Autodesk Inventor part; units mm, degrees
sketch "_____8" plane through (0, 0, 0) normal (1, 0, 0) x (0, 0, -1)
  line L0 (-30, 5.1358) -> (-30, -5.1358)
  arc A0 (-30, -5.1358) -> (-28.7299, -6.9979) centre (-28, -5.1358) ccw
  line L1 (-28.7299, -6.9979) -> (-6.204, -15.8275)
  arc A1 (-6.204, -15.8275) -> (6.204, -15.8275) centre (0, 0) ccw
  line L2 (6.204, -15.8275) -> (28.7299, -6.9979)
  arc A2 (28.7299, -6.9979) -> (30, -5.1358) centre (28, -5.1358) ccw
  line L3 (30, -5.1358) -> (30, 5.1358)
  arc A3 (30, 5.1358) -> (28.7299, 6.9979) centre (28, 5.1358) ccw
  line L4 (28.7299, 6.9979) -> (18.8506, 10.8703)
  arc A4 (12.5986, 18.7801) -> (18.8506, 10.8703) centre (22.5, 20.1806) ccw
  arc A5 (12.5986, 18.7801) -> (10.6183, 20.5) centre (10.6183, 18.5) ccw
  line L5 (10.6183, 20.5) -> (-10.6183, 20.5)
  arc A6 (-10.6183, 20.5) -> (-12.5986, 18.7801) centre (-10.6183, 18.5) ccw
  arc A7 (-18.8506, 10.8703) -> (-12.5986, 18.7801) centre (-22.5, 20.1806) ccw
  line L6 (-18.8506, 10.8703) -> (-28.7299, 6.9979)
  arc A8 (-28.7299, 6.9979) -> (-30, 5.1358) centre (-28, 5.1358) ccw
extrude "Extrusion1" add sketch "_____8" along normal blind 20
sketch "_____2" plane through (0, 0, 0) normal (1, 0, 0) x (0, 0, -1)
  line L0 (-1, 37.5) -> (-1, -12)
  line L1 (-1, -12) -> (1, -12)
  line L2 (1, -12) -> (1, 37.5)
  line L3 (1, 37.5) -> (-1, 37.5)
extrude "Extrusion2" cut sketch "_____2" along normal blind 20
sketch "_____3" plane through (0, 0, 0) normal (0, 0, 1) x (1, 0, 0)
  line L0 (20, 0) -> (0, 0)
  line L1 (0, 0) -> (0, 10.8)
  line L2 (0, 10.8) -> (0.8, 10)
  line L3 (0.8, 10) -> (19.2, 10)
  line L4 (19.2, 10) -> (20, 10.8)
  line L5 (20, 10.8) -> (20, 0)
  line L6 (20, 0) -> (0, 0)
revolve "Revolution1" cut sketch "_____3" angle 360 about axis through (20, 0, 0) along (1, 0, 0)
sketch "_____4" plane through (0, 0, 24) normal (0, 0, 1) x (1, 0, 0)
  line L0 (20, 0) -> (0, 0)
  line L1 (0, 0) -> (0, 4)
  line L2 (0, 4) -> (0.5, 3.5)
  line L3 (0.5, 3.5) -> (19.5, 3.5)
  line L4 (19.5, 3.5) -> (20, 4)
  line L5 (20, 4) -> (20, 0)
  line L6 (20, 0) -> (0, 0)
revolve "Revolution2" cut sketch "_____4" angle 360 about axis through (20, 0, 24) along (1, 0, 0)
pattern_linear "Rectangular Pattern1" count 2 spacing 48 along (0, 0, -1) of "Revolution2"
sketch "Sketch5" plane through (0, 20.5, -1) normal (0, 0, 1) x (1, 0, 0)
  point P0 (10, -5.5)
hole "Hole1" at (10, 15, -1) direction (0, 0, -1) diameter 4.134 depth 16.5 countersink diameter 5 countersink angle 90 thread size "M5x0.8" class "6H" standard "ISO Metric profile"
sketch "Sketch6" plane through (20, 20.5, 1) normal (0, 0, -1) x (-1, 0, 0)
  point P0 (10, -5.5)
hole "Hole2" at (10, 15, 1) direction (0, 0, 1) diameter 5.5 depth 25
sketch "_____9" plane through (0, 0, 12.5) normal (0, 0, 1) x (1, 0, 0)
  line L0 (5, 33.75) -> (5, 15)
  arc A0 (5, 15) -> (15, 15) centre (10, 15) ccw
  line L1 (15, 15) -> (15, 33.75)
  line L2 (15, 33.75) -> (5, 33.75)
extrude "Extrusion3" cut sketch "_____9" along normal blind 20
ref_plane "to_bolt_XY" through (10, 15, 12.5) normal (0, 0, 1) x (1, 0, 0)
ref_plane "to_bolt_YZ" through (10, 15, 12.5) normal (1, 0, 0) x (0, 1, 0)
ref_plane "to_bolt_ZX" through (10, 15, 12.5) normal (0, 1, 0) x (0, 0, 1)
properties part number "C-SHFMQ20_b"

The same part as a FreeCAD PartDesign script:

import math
import FreeCAD as App
import Part
import Sketcher
from FreeCAD import Vector


def add_polygon(sketch, points):
    """Adds a closed chain of lines whose ends are joined by coincident constraints."""
    first, n = sketch.GeometryCount, len(points)
    for a, b in zip(points, points[1:] + points[:1]):
        sketch.addGeometry(Part.LineSegment(App.Vector(*a, 0), App.Vector(*b, 0)), False)
    for i in range(n):
        sketch.addConstraint(Sketcher.Constraint("Coincident", first + i, 2, first + (i + 1) % n, 1))

doc = App.newDocument("Part")
body = doc.addObject("PartDesign::Body", "Body")

# Sketch on YZ plane
sketch1 = body.newObject("Sketcher::SketchObject", "Sketch")
sketch1.AttachmentSupport = (doc.getObject("YZ_Plane"), [""])
sketch1.MapMode = "FlatFace"
sketch1.addGeometry([
    Part.ArcOfCircle(Part.Circle(Vector(5.1, 28, 0), Vector(0, 0, 1), 2), math.radians(21), math.radians(90)),  # 0
    Part.LineSegment(Vector(5.1, 30, 0), Vector(-5.1, 30, 0)),  # 1
    Part.ArcOfCircle(Part.Circle(Vector(-5.1, 28, 0), Vector(0, 0, 1), 2), math.radians(90), math.radians(159)),  # 2
    Part.LineSegment(Vector(-7, 28.7, 0), Vector(-15.8, 6.2, 0)),  # 3
    Part.ArcOfCircle(Part.Circle(Vector(0, 0, 0), Vector(0, 0, 1), 17), math.radians(159), math.radians(201)),  # 4
    Part.LineSegment(Vector(-15.8, -6.2, 0), Vector(-7, -28.7, 0)),  # 5
    Part.ArcOfCircle(Part.Circle(Vector(-5.1, -28, 0), Vector(0, 0, 1), 2), math.radians(-159), math.radians(-90)),  # 6
    Part.LineSegment(Vector(-5.1, -30, 0), Vector(5.1, -30, 0)),  # 7
    Part.ArcOfCircle(Part.Circle(Vector(5.1, -28, 0), Vector(0, 0, 1), 2), math.radians(-90), math.radians(-21)),  # 8
    Part.LineSegment(Vector(7, -28.7, 0), Vector(10.9, -18.9, 0)),  # 9
    Part.ArcOfCircle(Part.Circle(Vector(20.2, -22.5, 0), Vector(0, 0, 1), 10), math.radians(98), math.radians(159)),  # 10
    Part.ArcOfCircle(Part.Circle(Vector(18.5, -10.6, 0), Vector(0, 0, 1), 2), math.radians(-82), math.radians(0)),  # 11
    Part.LineSegment(Vector(20.5, -10.6, 0), Vector(20.5, 10.6, 0)),  # 12
    Part.ArcOfCircle(Part.Circle(Vector(18.5, 10.6, 0), Vector(0, 0, 1), 2), math.radians(0), math.radians(82)),  # 13
    Part.ArcOfCircle(Part.Circle(Vector(20.2, 22.5, 0), Vector(0, 0, 1), 10), math.radians(-159), math.radians(-98)),  # 14
    Part.LineSegment(Vector(10.9, 18.9, 0), Vector(7, 28.7, 0)),  # 15
], False)
sketch1.addConstraint([
    Sketcher.Constraint("Tangent", 0, 2, 1, 1),
    Sketcher.Constraint("Tangent", 1, 2, 2, 1),
    Sketcher.Constraint("Tangent", 2, 2, 3, 1),
    Sketcher.Constraint("Tangent", 3, 2, 4, 1),
    Sketcher.Constraint("Tangent", 4, 2, 5, 1),
    Sketcher.Constraint("Tangent", 5, 2, 6, 1),
    Sketcher.Constraint("Tangent", 6, 2, 7, 1),
    Sketcher.Constraint("Tangent", 7, 2, 8, 1),
    Sketcher.Constraint("Tangent", 8, 2, 9, 1),
    Sketcher.Constraint("Tangent", 9, 2, 10, 2),
    Sketcher.Constraint("Tangent", 10, 1, 11, 1),
    Sketcher.Constraint("Tangent", 11, 2, 12, 1),
    Sketcher.Constraint("Tangent", 12, 2, 13, 1),
    Sketcher.Constraint("Tangent", 13, 2, 14, 2),
    Sketcher.Constraint("Tangent", 14, 1, 15, 1),
    Sketcher.Constraint("Tangent", 15, 2, 0, 1),
    Sketcher.Constraint("Horizontal", 1),
    Sketcher.Constraint("Horizontal", 7),
    Sketcher.Constraint("Vertical", 12),
    Sketcher.Constraint("Coincident", 4, 3, -1, 1),
    Sketcher.Constraint("Equal", 0, 2),
    Sketcher.Constraint("Equal", 2, 6),
    Sketcher.Constraint("Equal", 6, 8),
    Sketcher.Constraint("Equal", 8, 11),
    Sketcher.Constraint("Equal", 11, 13),
    Sketcher.Constraint("Equal", 10, 14),
    Sketcher.Constraint("Symmetric", 0, 3, 6, 3, -1, 1),
    Sketcher.Constraint("Symmetric", 2, 2, 8, 2, -1, 1),
    Sketcher.Constraint("Symmetric", 2, 2, 15, 2, -2),
    Sketcher.Constraint("Vertical", 10, 3, 14, 3),
    Sketcher.Constraint("Radius", 0, 2.0),
    Sketcher.Constraint("Radius", 4, 17.0),
    Sketcher.Constraint("Radius", 10, 10.0),
    Sketcher.Constraint("DistanceY", -1, 1, 0, 3, 28.0),
    Sketcher.Constraint("DistanceY", 10, 3, -1, 1, 22.5),
    Sketcher.Constraint("DistanceX", -1, 1, 11, 3, 18.5),
    Sketcher.Constraint("DistanceY", -1, 1, 2, 2, 28.73),
])
pad1 = body.newObject("PartDesign::Pad", "Pad")
pad1.Profile = sketch1
pad1.Length = 20

# Sketch on YZ plane
sketch2 = body.newObject("Sketcher::SketchObject", "Sketch001")
sketch2.AttachmentSupport = (doc.getObject("YZ_Plane"), [""])
sketch2.MapMode = "FlatFace"
add_polygon(sketch2, [(37.5, -1), (37.5, 1), (-12, 1), (-12, -1)])  # lines 0-3
sketch2.addConstraint([
    Sketcher.Constraint("Vertical", 0),
    Sketcher.Constraint("Horizontal", 1),
    Sketcher.Constraint("Vertical", 2),
    Sketcher.Constraint("Horizontal", 3),
    Sketcher.Constraint("DistanceY", 0, 1, 0, 2, 2.0),
    Sketcher.Constraint("DistanceX", 1, 2, 1, 1, 49.5),
    Sketcher.Constraint("DistanceY", -1, 1, 0, 2, 1.0),
    Sketcher.Constraint("DistanceX", 1, 2, -1, 1, 12.0),
])
pocket1 = body.newObject("PartDesign::Pocket", "Pocket")
pocket1.Profile = sketch2
pocket1.Length = 20
pocket1.Reversed = True

# Sketch on XY plane
sketch3 = body.newObject("Sketcher::SketchObject", "Sketch002")
sketch3.AttachmentSupport = (doc.getObject("XY_Plane"), [""])
sketch3.MapMode = "FlatFace"
add_polygon(sketch3, [(0, 0), (20, 0), (20, 10.8), (19.2, 10), (0.8, 10), (0, 10.8)])  # lines 0-5
sketch3.addConstraint([
    Sketcher.Constraint("Horizontal", 0),
    Sketcher.Constraint("Vertical", 1),
    Sketcher.Constraint("Horizontal", 3),
    Sketcher.Constraint("Vertical", 5),
    Sketcher.Constraint("Coincident", 5, 2, -1, 1),
    Sketcher.Constraint("Perpendicular", 2, 4),
    Sketcher.Constraint("Horizontal", 1, 2, 4, 2),
    Sketcher.Constraint("Equal", 2, 4),
    Sketcher.Constraint("DistanceX", 0, 1, 0, 2, 20.0),
    Sketcher.Constraint("DistanceX", 3, 2, 3, 1, 18.4),
    Sketcher.Constraint("DistanceY", 1, 1, 1, 2, 10.8),
])
groove = body.newObject("PartDesign::Groove", "Groove")
groove.Profile = sketch3
groove.ReferenceAxis = (sketch3, ["H_Axis"])
groove.Angle = 360

# Sketch on XY plane
sketch4 = body.newObject("Sketcher::SketchObject", "Sketch003")
sketch4.AttachmentSupport = (doc.getObject("XY_Plane"), [""])
sketch4.MapMode = "FlatFace"
sketch4.AttachmentOffset = App.Placement(Vector(0, 0, 24), App.Rotation())
add_polygon(sketch4, [(0, 0), (20, 0), (20, 4), (19.5, 3.5), (0.5, 3.5), (0, 4)])  # lines 0-5
sketch4.addConstraint([
    Sketcher.Constraint("Horizontal", 0),
    Sketcher.Constraint("Vertical", 1),
    Sketcher.Constraint("Horizontal", 3),
    Sketcher.Constraint("Vertical", 5),
    Sketcher.Constraint("Coincident", 5, 2, -1, 1),
    Sketcher.Constraint("Perpendicular", 2, 4),
    Sketcher.Constraint("Horizontal", 1, 2, 4, 2),
    Sketcher.Constraint("Equal", 2, 4),
    Sketcher.Constraint("DistanceX", 0, 1, 0, 2, 20.0),
    Sketcher.Constraint("DistanceX", 3, 2, 3, 1, 19.0),
    Sketcher.Constraint("DistanceY", 1, 1, 1, 2, 4.0),
])
groove2 = body.newObject("PartDesign::Groove", "Groove001")
groove2.Profile = sketch4
groove2.ReferenceAxis = (sketch4, ["H_Axis"])
groove2.Angle = 360
doc.recompute()

linearpattern = body.newObject("PartDesign::LinearPattern", "LinearPattern")
linearpattern.Originals = [groove2]
linearpattern.Direction = (doc.getObject("Z_Axis"), [""])
linearpattern.Mode = "offset"
linearpattern.Offset = 48
linearpattern.Occurrences = 2
linearpattern.Reversed = True
body.Tip = linearpattern

# Sketch on XY plane
sketch5 = body.newObject("Sketcher::SketchObject", "Sketch004")
sketch5.AttachmentSupport = (doc.getObject("XY_Plane"), [""])
sketch5.MapMode = "FlatFace"
sketch5.AttachmentOffset = App.Placement(Vector(0, 0, -1), App.Rotation())
sketch5.addGeometry(Part.Circle(Vector(10, 15, 0), Vector(0, 0, 1), 2.1), False)
sketch5.addConstraint([
    Sketcher.Constraint("Diameter", 0, 4.134),
    Sketcher.Constraint("DistanceX", -1, 1, 0, 3, 10.0),
    Sketcher.Constraint("DistanceY", -1, 1, 0, 3, 15.0),
])
doc.recompute()
hole = body.newObject("PartDesign::Hole", "Hole")
hole.Profile = sketch5
hole.ThreadType = "None"
hole.Diameter = 4.134
hole.DepthType = "Dimension"
hole.Depth = 16.5
hole.DrillPoint = "Flat"
hole.HoleCutType = "Countersink"
hole.HoleCutDiameter = 5
hole.HoleCutCountersinkAngle = 90

# Sketch on XY plane
sketch6 = body.newObject("Sketcher::SketchObject", "Sketch005")
sketch6.AttachmentSupport = (doc.getObject("XY_Plane"), [""])
sketch6.MapMode = "FlatFace"
sketch6.AttachmentOffset = App.Placement(Vector(0, 0, 1), App.Rotation())
sketch6.addGeometry(Part.Circle(Vector(10, 15, 0), Vector(0, 0, 1), 2.8), False)
sketch6.addConstraint([
    Sketcher.Constraint("Diameter", 0, 5.5),
    Sketcher.Constraint("DistanceX", -1, 1, 0, 3, 10.0),
    Sketcher.Constraint("DistanceY", -1, 1, 0, 3, 15.0),
])
doc.recompute()
hole2 = body.newObject("PartDesign::Hole", "Hole001")
hole2.Profile = sketch6
hole2.ThreadType = "None"
hole2.Diameter = 5.5
hole2.DepthType = "Dimension"
hole2.Depth = 25
hole2.DrillPoint = "Flat"
hole2.Reversed = True

# Sketch on XY plane
sketch7 = body.newObject("Sketcher::SketchObject", "Sketch006")
sketch7.AttachmentSupport = (doc.getObject("XY_Plane"), [""])
sketch7.MapMode = "FlatFace"
sketch7.AttachmentOffset = App.Placement(Vector(0, 0, 12.5), App.Rotation())
sketch7.addGeometry([
    Part.LineSegment(Vector(15, 34, 0), Vector(5, 34, 0)),
    Part.LineSegment(Vector(5, 34, 0), Vector(5, 15, 0)),
    Part.ArcOfCircle(Part.Circle(Vector(10, 15, 0), Vector(0, 0, 1), 5), math.radians(180), math.radians(360)),
    Part.LineSegment(Vector(15, 15, 0), Vector(15, 34, 0)),
], False)
sketch7.addConstraint([
    Sketcher.Constraint("Coincident", 0, 2, 1, 1),
    Sketcher.Constraint("Tangent", 1, 2, 2, 1),
    Sketcher.Constraint("Tangent", 2, 2, 3, 1),
    Sketcher.Constraint("Coincident", 3, 2, 0, 1),
    Sketcher.Constraint("Horizontal", 0),
    Sketcher.Constraint("Vertical", 1),
    Sketcher.Constraint("Vertical", 3),
    Sketcher.Constraint("Radius", 2, 5.0),
    Sketcher.Constraint("DistanceX", -1, 1, 2, 3, 10.0),
    Sketcher.Constraint("DistanceY", -1, 1, 2, 3, 15.0),
    Sketcher.Constraint("DistanceY", 1, 2, 1, 1, 18.75),
])
pocket2 = body.newObject("PartDesign::Pocket", "Pocket001")
pocket2.Profile = sketch7
pocket2.Length = 20
pocket2.Reversed = True

doc.recompute()
